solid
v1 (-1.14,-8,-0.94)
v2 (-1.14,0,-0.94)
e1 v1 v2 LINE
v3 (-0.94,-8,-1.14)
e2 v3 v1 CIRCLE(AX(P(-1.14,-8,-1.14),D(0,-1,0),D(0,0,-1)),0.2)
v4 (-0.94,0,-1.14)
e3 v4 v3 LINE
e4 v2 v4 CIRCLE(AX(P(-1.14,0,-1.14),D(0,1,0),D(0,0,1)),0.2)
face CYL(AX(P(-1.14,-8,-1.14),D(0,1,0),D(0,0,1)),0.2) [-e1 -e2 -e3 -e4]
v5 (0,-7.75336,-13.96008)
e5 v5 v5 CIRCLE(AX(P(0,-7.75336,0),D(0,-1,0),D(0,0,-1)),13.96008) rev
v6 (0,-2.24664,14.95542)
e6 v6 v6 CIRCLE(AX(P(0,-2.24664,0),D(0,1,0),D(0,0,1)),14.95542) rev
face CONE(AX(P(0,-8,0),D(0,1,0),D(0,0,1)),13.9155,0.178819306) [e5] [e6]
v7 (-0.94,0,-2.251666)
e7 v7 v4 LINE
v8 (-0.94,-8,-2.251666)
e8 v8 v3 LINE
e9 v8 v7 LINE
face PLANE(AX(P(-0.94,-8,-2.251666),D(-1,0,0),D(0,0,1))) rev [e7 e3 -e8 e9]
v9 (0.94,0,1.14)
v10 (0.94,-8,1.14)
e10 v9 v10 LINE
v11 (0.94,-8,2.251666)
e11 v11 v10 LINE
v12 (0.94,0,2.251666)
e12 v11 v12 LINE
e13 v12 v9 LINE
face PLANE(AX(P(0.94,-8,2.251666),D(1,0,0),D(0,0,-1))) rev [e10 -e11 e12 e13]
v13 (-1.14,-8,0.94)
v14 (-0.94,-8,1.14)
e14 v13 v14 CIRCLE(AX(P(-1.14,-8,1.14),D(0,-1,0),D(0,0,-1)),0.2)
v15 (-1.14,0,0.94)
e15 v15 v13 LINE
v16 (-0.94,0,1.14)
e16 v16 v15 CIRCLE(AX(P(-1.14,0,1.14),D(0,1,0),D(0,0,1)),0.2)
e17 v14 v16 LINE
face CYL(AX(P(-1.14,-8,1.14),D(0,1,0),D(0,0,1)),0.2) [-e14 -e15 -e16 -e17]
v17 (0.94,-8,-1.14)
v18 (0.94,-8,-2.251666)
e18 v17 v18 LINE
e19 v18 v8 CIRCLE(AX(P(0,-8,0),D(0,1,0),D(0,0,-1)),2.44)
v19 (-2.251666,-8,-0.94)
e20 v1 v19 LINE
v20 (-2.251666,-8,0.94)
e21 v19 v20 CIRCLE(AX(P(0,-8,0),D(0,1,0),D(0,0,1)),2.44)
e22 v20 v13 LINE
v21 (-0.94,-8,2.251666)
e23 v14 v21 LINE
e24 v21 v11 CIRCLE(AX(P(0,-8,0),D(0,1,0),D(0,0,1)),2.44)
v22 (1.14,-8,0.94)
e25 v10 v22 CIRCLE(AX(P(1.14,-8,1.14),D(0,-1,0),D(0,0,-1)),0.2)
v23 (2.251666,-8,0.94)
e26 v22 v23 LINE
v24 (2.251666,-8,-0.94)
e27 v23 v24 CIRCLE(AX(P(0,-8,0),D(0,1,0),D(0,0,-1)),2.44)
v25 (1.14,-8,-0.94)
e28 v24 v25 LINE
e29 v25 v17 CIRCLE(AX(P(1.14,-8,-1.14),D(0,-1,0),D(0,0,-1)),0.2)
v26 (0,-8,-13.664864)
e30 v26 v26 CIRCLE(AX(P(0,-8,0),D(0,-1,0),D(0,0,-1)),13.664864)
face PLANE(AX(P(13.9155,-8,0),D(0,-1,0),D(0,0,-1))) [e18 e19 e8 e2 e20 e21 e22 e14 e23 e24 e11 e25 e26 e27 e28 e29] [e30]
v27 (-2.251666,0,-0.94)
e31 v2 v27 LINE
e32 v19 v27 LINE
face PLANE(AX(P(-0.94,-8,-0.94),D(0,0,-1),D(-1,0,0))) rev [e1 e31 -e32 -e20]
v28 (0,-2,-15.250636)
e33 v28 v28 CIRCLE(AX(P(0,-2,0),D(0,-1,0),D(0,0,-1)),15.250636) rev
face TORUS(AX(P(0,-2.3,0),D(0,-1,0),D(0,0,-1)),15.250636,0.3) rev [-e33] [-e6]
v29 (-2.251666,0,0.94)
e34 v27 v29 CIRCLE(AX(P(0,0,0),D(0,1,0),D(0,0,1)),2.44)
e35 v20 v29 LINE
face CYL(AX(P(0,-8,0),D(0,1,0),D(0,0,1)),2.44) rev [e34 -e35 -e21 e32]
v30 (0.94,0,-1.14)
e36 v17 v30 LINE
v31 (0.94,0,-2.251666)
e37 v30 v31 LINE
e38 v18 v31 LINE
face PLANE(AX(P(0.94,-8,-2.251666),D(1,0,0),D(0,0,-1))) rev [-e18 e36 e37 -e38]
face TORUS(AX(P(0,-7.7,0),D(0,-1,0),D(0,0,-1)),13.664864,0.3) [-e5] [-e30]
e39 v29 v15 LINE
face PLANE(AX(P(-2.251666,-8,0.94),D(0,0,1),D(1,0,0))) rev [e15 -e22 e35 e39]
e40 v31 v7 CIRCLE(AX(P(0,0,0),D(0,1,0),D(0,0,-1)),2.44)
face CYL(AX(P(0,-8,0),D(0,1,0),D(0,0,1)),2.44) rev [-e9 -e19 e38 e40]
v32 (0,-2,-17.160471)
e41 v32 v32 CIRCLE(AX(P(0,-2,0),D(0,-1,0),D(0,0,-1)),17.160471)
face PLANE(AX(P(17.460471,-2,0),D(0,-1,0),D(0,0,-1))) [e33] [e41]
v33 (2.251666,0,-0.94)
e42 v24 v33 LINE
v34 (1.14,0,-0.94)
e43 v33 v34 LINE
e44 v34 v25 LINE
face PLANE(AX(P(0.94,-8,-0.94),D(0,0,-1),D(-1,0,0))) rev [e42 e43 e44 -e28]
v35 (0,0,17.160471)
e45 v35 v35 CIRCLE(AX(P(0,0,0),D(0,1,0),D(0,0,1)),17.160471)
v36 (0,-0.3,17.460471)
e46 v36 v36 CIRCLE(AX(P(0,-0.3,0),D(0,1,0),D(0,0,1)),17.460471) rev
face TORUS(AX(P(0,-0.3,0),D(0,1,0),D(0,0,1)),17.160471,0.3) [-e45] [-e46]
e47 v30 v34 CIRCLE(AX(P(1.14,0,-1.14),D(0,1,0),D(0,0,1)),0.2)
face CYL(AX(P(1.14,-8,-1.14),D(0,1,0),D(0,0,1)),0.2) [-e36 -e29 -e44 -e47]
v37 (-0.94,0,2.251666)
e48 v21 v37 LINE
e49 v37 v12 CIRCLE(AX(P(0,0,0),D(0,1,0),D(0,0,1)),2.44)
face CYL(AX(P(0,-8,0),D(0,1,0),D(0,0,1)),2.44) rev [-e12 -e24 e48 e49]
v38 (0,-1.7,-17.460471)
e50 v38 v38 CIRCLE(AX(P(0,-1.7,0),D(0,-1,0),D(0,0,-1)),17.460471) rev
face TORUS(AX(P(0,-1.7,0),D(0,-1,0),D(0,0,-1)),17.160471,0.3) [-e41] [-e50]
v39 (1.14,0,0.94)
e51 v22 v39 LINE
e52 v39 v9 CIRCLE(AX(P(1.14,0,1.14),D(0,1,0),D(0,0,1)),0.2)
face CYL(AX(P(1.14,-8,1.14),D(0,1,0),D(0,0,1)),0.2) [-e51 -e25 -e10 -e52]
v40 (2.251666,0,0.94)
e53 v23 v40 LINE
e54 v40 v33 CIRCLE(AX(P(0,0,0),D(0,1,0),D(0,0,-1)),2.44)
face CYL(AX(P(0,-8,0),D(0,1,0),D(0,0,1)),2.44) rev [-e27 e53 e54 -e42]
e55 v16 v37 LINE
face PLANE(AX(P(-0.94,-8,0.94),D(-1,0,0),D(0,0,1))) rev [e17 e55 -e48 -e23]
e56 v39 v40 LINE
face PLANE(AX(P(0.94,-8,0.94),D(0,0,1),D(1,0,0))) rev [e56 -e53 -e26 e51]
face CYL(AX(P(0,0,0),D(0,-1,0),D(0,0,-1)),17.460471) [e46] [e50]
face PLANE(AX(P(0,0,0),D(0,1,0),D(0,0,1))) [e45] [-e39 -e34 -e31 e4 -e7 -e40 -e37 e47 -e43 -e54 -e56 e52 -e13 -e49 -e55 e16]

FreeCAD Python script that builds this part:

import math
import FreeCAD as App
import Part
import Sketcher
Q = App.Units.Quantity


def edges_at(feature, points):
    """Names of the edges that pass closest to the given points."""
    edges = feature.Shape.Edges
    near = lambda p: min(range(len(edges)), key=lambda i: edges[i].distToShape(Part.Vertex(*p))[0])
    return sorted({f"Edge{near(p) + 1}" for p in points})

doc = App.newDocument("Part")
body = doc.addObject("PartDesign::Body", "Body")

# Sketch on XY plane
sketch1 = body.newObject("Sketcher::SketchObject", "Sketch")
sketch1.AttachmentSupport = (doc.getObject("XY_Plane"), [""])
sketch1.MapMode = "FlatFace"
sketch1.addGeometry(Part.LineSegment(App.Vector(17.460471, 0, 0), App.Vector(0, 0, 0)), False)
sketch1.addGeometry(Part.LineSegment(App.Vector(0, 0, 0), App.Vector(0, -8, 0)), False)
sketch1.addGeometry(Part.LineSegment(App.Vector(0, -8, 0), App.Vector(13.9155, -8, 0)), False)
sketch1.addGeometry(Part.LineSegment(App.Vector(13.9155, -8, 0), App.Vector(15, -2, 0)), False)
sketch1.addGeometry(Part.LineSegment(App.Vector(15, -2, 0), App.Vector(17.460471, -2, 0)), False)
sketch1.addGeometry(Part.LineSegment(App.Vector(17.460471, -2, 0), App.Vector(17.460471, 0, 0)), False)
sketch1.addConstraint(Sketcher.Constraint("Coincident", 0, 2, 1, 1))
sketch1.addConstraint(Sketcher.Constraint("Coincident", 1, 2, 2, 1))
sketch1.addConstraint(Sketcher.Constraint("Coincident", 2, 2, 3, 1))
sketch1.addConstraint(Sketcher.Constraint("Coincident", 3, 2, 4, 1))
sketch1.addConstraint(Sketcher.Constraint("Coincident", 4, 2, 5, 1))
sketch1.addConstraint(Sketcher.Constraint("Coincident", 5, 2, 0, 1))
sketch1.addConstraint(Sketcher.Constraint("Horizontal", 0))
sketch1.addConstraint(Sketcher.Constraint("Vertical", 1))
sketch1.addConstraint(Sketcher.Constraint("Horizontal", 2))
sketch1.addConstraint(Sketcher.Constraint("Horizontal", 4))
sketch1.addConstraint(Sketcher.Constraint("Vertical", 5))
sketch1.addConstraint(Sketcher.Constraint("Coincident", 0, 2, -1, 1))
sketch1.addConstraint(Sketcher.Constraint("DistanceY", 1, 2, 1, 1, Q("8 mm")))
sketch1.addConstraint(Sketcher.Constraint("DistanceY", 5, 1, 5, 2, Q("2 mm")))
sketch1.addConstraint(Sketcher.Constraint("DistanceX", -1, 1, 3, 2, Q("15 mm")))
sketch1.addConstraint(Sketcher.Constraint("DistanceX", 2, 1, 2, 2, Q("13.9155 mm")))
sketch1.addConstraint(Sketcher.Constraint("DistanceX", 0, 2, 0, 1, Q("17.460471 mm")))
revolution = body.newObject("PartDesign::Revolution", "Revolution")
revolution.Profile = sketch1
revolution.ReferenceAxis = (sketch1, ["V_Axis"])
revolution.Angle = 360

# Sketch on XZ plane
sketch2 = body.newObject("Sketcher::SketchObject", "Sketch001")
sketch2.AttachmentSupport = (doc.getObject("XZ_Plane"), [""])
sketch2.MapMode = "FlatFace"
sketch2.addGeometry(Part.LineSegment(App.Vector(-0.94, -0.94, 0), App.Vector(-2.251666, -0.94, 0)), False)
sketch2.addGeometry(Part.ArcOfCircle(Part.Circle(App.Vector(0, 0, 0), App.Vector(0, 0, 1), 2.44), math.radians(157.340993), math.radians(202.659007)), False)
sketch2.addGeometry(Part.LineSegment(App.Vector(-2.251666, 0.94, 0), App.Vector(-0.94, 0.94, 0)), False)
sketch2.addGeometry(Part.LineSegment(App.Vector(-0.94, 0.94, 0), App.Vector(-0.94, 2.251666, 0)), False)
sketch2.addGeometry(Part.ArcOfCircle(Part.Circle(App.Vector(0, 0, 0), App.Vector(0, 0, 1), 2.44), math.radians(67.340993), math.radians(112.659007)), False)
sketch2.addGeometry(Part.LineSegment(App.Vector(0.94, 2.251666, 0), App.Vector(0.94, 0.94, 0)), False)
sketch2.addGeometry(Part.LineSegment(App.Vector(0.94, 0.94, 0), App.Vector(2.251666, 0.94, 0)), False)
sketch2.addGeometry(Part.ArcOfCircle(Part.Circle(App.Vector(0, 0, 0), App.Vector(0, 0, 1), 2.44), math.radians(-22.659007), math.radians(22.659007)), False)
sketch2.addGeometry(Part.LineSegment(App.Vector(2.251666, -0.94, 0), App.Vector(0.94, -0.94, 0)), False)
sketch2.addGeometry(Part.LineSegment(App.Vector(0.94, -0.94, 0), App.Vector(0.94, -2.251666, 0)), False)
sketch2.addGeometry(Part.ArcOfCircle(Part.Circle(App.Vector(0, 0, 0), App.Vector(0, 0, 1), 2.44), math.radians(-112.659007), math.radians(-67.340993)), False)
sketch2.addGeometry(Part.LineSegment(App.Vector(-0.94, -2.251666, 0), App.Vector(-0.94, -0.94, 0)), False)
sketch2.addConstraint(Sketcher.Constraint("Coincident", 0, 2, 1, 2))
sketch2.addConstraint(Sketcher.Constraint("Coincident", 1, 1, 2, 1))
sketch2.addConstraint(Sketcher.Constraint("Coincident", 2, 2, 3, 1))
sketch2.addConstraint(Sketcher.Constraint("Coincident", 3, 2, 4, 2))
sketch2.addConstraint(Sketcher.Constraint("Coincident", 4, 1, 5, 1))
sketch2.addConstraint(Sketcher.Constraint("Coincident", 5, 2, 6, 1))
sketch2.addConstraint(Sketcher.Constraint("Coincident", 6, 2, 7, 2))
sketch2.addConstraint(Sketcher.Constraint("Coincident", 7, 1, 8, 1))
sketch2.addConstraint(Sketcher.Constraint("Coincident", 8, 2, 9, 1))
sketch2.addConstraint(Sketcher.Constraint("Coincident", 9, 2, 10, 2))
sketch2.addConstraint(Sketcher.Constraint("Coincident", 10, 1, 11, 1))
sketch2.addConstraint(Sketcher.Constraint("Coincident", 11, 2, 0, 1))
sketch2.addConstraint(Sketcher.Constraint("Horizontal", 0))
sketch2.addConstraint(Sketcher.Constraint("Horizontal", 2))
sketch2.addConstraint(Sketcher.Constraint("Vertical", 3))
sketch2.addConstraint(Sketcher.Constraint("Vertical", 5))
sketch2.addConstraint(Sketcher.Constraint("Horizontal", 6))
sketch2.addConstraint(Sketcher.Constraint("Horizontal", 8))
sketch2.addConstraint(Sketcher.Constraint("Vertical", 9))
sketch2.addConstraint(Sketcher.Constraint("Vertical", 11))
sketch2.addConstraint(Sketcher.Constraint("Coincident", 1, 3, -1, 1))
sketch2.addConstraint(Sketcher.Constraint("Coincident", 4, 3, -1, 1))
sketch2.addConstraint(Sketcher.Constraint("Coincident", 7, 3, -1, 1))
sketch2.addConstraint(Sketcher.Constraint("Coincident", 10, 3, -1, 1))
sketch2.addConstraint(Sketcher.Constraint("Equal", 1, 4))
sketch2.addConstraint(Sketcher.Constraint("Equal", 4, 7))
sketch2.addConstraint(Sketcher.Constraint("Equal", 7, 10))
sketch2.addConstraint(Sketcher.Constraint("Symmetric", 2, 2, 8, 2, -1, 1))
sketch2.addConstraint(Sketcher.Constraint("Symmetric", 5, 2, 11, 2, -1, 1))
sketch2.addConstraint(Sketcher.Constraint("Symmetric", 2, 2, 5, 2, -2))
sketch2.addConstraint(Sketcher.Constraint("Equal", 8, 3))
sketch2.addConstraint(Sketcher.Constraint("Radius", 1, Q("2.44 mm")))
sketch2.addConstraint(Sketcher.Constraint("DistanceY", 0, 2, -1, 1, Q("0.94 mm")))
pocket1 = body.newObject("PartDesign::Pocket", "Pocket")
pocket1.Profile = sketch2
pocket1.Type = "ThroughAll"
pocket1.Reversed = True
doc.recompute()

fillet = body.newObject("PartDesign::Fillet", "Fillet")
fillet.Base = (pocket1, edges_at(pocket1, [
    (-0.94, -4, -0.94),
    (0.94, -4, -0.94),
    (0.94, -4, 0.94),
    (-0.94, -4, 0.94),
]))
fillet.Radius = 0.2
doc.recompute()

fillet2 = body.newObject("PartDesign::Fillet", "Fillet001")
fillet2.Base = (fillet, edges_at(fillet, [
    (0, -8, 13.915),
    (0, -2, 15),
    (0, -2, 17.46),
    (0, 0, 17.46),
]))
fillet2.Radius = 0.3

doc.recompute()
